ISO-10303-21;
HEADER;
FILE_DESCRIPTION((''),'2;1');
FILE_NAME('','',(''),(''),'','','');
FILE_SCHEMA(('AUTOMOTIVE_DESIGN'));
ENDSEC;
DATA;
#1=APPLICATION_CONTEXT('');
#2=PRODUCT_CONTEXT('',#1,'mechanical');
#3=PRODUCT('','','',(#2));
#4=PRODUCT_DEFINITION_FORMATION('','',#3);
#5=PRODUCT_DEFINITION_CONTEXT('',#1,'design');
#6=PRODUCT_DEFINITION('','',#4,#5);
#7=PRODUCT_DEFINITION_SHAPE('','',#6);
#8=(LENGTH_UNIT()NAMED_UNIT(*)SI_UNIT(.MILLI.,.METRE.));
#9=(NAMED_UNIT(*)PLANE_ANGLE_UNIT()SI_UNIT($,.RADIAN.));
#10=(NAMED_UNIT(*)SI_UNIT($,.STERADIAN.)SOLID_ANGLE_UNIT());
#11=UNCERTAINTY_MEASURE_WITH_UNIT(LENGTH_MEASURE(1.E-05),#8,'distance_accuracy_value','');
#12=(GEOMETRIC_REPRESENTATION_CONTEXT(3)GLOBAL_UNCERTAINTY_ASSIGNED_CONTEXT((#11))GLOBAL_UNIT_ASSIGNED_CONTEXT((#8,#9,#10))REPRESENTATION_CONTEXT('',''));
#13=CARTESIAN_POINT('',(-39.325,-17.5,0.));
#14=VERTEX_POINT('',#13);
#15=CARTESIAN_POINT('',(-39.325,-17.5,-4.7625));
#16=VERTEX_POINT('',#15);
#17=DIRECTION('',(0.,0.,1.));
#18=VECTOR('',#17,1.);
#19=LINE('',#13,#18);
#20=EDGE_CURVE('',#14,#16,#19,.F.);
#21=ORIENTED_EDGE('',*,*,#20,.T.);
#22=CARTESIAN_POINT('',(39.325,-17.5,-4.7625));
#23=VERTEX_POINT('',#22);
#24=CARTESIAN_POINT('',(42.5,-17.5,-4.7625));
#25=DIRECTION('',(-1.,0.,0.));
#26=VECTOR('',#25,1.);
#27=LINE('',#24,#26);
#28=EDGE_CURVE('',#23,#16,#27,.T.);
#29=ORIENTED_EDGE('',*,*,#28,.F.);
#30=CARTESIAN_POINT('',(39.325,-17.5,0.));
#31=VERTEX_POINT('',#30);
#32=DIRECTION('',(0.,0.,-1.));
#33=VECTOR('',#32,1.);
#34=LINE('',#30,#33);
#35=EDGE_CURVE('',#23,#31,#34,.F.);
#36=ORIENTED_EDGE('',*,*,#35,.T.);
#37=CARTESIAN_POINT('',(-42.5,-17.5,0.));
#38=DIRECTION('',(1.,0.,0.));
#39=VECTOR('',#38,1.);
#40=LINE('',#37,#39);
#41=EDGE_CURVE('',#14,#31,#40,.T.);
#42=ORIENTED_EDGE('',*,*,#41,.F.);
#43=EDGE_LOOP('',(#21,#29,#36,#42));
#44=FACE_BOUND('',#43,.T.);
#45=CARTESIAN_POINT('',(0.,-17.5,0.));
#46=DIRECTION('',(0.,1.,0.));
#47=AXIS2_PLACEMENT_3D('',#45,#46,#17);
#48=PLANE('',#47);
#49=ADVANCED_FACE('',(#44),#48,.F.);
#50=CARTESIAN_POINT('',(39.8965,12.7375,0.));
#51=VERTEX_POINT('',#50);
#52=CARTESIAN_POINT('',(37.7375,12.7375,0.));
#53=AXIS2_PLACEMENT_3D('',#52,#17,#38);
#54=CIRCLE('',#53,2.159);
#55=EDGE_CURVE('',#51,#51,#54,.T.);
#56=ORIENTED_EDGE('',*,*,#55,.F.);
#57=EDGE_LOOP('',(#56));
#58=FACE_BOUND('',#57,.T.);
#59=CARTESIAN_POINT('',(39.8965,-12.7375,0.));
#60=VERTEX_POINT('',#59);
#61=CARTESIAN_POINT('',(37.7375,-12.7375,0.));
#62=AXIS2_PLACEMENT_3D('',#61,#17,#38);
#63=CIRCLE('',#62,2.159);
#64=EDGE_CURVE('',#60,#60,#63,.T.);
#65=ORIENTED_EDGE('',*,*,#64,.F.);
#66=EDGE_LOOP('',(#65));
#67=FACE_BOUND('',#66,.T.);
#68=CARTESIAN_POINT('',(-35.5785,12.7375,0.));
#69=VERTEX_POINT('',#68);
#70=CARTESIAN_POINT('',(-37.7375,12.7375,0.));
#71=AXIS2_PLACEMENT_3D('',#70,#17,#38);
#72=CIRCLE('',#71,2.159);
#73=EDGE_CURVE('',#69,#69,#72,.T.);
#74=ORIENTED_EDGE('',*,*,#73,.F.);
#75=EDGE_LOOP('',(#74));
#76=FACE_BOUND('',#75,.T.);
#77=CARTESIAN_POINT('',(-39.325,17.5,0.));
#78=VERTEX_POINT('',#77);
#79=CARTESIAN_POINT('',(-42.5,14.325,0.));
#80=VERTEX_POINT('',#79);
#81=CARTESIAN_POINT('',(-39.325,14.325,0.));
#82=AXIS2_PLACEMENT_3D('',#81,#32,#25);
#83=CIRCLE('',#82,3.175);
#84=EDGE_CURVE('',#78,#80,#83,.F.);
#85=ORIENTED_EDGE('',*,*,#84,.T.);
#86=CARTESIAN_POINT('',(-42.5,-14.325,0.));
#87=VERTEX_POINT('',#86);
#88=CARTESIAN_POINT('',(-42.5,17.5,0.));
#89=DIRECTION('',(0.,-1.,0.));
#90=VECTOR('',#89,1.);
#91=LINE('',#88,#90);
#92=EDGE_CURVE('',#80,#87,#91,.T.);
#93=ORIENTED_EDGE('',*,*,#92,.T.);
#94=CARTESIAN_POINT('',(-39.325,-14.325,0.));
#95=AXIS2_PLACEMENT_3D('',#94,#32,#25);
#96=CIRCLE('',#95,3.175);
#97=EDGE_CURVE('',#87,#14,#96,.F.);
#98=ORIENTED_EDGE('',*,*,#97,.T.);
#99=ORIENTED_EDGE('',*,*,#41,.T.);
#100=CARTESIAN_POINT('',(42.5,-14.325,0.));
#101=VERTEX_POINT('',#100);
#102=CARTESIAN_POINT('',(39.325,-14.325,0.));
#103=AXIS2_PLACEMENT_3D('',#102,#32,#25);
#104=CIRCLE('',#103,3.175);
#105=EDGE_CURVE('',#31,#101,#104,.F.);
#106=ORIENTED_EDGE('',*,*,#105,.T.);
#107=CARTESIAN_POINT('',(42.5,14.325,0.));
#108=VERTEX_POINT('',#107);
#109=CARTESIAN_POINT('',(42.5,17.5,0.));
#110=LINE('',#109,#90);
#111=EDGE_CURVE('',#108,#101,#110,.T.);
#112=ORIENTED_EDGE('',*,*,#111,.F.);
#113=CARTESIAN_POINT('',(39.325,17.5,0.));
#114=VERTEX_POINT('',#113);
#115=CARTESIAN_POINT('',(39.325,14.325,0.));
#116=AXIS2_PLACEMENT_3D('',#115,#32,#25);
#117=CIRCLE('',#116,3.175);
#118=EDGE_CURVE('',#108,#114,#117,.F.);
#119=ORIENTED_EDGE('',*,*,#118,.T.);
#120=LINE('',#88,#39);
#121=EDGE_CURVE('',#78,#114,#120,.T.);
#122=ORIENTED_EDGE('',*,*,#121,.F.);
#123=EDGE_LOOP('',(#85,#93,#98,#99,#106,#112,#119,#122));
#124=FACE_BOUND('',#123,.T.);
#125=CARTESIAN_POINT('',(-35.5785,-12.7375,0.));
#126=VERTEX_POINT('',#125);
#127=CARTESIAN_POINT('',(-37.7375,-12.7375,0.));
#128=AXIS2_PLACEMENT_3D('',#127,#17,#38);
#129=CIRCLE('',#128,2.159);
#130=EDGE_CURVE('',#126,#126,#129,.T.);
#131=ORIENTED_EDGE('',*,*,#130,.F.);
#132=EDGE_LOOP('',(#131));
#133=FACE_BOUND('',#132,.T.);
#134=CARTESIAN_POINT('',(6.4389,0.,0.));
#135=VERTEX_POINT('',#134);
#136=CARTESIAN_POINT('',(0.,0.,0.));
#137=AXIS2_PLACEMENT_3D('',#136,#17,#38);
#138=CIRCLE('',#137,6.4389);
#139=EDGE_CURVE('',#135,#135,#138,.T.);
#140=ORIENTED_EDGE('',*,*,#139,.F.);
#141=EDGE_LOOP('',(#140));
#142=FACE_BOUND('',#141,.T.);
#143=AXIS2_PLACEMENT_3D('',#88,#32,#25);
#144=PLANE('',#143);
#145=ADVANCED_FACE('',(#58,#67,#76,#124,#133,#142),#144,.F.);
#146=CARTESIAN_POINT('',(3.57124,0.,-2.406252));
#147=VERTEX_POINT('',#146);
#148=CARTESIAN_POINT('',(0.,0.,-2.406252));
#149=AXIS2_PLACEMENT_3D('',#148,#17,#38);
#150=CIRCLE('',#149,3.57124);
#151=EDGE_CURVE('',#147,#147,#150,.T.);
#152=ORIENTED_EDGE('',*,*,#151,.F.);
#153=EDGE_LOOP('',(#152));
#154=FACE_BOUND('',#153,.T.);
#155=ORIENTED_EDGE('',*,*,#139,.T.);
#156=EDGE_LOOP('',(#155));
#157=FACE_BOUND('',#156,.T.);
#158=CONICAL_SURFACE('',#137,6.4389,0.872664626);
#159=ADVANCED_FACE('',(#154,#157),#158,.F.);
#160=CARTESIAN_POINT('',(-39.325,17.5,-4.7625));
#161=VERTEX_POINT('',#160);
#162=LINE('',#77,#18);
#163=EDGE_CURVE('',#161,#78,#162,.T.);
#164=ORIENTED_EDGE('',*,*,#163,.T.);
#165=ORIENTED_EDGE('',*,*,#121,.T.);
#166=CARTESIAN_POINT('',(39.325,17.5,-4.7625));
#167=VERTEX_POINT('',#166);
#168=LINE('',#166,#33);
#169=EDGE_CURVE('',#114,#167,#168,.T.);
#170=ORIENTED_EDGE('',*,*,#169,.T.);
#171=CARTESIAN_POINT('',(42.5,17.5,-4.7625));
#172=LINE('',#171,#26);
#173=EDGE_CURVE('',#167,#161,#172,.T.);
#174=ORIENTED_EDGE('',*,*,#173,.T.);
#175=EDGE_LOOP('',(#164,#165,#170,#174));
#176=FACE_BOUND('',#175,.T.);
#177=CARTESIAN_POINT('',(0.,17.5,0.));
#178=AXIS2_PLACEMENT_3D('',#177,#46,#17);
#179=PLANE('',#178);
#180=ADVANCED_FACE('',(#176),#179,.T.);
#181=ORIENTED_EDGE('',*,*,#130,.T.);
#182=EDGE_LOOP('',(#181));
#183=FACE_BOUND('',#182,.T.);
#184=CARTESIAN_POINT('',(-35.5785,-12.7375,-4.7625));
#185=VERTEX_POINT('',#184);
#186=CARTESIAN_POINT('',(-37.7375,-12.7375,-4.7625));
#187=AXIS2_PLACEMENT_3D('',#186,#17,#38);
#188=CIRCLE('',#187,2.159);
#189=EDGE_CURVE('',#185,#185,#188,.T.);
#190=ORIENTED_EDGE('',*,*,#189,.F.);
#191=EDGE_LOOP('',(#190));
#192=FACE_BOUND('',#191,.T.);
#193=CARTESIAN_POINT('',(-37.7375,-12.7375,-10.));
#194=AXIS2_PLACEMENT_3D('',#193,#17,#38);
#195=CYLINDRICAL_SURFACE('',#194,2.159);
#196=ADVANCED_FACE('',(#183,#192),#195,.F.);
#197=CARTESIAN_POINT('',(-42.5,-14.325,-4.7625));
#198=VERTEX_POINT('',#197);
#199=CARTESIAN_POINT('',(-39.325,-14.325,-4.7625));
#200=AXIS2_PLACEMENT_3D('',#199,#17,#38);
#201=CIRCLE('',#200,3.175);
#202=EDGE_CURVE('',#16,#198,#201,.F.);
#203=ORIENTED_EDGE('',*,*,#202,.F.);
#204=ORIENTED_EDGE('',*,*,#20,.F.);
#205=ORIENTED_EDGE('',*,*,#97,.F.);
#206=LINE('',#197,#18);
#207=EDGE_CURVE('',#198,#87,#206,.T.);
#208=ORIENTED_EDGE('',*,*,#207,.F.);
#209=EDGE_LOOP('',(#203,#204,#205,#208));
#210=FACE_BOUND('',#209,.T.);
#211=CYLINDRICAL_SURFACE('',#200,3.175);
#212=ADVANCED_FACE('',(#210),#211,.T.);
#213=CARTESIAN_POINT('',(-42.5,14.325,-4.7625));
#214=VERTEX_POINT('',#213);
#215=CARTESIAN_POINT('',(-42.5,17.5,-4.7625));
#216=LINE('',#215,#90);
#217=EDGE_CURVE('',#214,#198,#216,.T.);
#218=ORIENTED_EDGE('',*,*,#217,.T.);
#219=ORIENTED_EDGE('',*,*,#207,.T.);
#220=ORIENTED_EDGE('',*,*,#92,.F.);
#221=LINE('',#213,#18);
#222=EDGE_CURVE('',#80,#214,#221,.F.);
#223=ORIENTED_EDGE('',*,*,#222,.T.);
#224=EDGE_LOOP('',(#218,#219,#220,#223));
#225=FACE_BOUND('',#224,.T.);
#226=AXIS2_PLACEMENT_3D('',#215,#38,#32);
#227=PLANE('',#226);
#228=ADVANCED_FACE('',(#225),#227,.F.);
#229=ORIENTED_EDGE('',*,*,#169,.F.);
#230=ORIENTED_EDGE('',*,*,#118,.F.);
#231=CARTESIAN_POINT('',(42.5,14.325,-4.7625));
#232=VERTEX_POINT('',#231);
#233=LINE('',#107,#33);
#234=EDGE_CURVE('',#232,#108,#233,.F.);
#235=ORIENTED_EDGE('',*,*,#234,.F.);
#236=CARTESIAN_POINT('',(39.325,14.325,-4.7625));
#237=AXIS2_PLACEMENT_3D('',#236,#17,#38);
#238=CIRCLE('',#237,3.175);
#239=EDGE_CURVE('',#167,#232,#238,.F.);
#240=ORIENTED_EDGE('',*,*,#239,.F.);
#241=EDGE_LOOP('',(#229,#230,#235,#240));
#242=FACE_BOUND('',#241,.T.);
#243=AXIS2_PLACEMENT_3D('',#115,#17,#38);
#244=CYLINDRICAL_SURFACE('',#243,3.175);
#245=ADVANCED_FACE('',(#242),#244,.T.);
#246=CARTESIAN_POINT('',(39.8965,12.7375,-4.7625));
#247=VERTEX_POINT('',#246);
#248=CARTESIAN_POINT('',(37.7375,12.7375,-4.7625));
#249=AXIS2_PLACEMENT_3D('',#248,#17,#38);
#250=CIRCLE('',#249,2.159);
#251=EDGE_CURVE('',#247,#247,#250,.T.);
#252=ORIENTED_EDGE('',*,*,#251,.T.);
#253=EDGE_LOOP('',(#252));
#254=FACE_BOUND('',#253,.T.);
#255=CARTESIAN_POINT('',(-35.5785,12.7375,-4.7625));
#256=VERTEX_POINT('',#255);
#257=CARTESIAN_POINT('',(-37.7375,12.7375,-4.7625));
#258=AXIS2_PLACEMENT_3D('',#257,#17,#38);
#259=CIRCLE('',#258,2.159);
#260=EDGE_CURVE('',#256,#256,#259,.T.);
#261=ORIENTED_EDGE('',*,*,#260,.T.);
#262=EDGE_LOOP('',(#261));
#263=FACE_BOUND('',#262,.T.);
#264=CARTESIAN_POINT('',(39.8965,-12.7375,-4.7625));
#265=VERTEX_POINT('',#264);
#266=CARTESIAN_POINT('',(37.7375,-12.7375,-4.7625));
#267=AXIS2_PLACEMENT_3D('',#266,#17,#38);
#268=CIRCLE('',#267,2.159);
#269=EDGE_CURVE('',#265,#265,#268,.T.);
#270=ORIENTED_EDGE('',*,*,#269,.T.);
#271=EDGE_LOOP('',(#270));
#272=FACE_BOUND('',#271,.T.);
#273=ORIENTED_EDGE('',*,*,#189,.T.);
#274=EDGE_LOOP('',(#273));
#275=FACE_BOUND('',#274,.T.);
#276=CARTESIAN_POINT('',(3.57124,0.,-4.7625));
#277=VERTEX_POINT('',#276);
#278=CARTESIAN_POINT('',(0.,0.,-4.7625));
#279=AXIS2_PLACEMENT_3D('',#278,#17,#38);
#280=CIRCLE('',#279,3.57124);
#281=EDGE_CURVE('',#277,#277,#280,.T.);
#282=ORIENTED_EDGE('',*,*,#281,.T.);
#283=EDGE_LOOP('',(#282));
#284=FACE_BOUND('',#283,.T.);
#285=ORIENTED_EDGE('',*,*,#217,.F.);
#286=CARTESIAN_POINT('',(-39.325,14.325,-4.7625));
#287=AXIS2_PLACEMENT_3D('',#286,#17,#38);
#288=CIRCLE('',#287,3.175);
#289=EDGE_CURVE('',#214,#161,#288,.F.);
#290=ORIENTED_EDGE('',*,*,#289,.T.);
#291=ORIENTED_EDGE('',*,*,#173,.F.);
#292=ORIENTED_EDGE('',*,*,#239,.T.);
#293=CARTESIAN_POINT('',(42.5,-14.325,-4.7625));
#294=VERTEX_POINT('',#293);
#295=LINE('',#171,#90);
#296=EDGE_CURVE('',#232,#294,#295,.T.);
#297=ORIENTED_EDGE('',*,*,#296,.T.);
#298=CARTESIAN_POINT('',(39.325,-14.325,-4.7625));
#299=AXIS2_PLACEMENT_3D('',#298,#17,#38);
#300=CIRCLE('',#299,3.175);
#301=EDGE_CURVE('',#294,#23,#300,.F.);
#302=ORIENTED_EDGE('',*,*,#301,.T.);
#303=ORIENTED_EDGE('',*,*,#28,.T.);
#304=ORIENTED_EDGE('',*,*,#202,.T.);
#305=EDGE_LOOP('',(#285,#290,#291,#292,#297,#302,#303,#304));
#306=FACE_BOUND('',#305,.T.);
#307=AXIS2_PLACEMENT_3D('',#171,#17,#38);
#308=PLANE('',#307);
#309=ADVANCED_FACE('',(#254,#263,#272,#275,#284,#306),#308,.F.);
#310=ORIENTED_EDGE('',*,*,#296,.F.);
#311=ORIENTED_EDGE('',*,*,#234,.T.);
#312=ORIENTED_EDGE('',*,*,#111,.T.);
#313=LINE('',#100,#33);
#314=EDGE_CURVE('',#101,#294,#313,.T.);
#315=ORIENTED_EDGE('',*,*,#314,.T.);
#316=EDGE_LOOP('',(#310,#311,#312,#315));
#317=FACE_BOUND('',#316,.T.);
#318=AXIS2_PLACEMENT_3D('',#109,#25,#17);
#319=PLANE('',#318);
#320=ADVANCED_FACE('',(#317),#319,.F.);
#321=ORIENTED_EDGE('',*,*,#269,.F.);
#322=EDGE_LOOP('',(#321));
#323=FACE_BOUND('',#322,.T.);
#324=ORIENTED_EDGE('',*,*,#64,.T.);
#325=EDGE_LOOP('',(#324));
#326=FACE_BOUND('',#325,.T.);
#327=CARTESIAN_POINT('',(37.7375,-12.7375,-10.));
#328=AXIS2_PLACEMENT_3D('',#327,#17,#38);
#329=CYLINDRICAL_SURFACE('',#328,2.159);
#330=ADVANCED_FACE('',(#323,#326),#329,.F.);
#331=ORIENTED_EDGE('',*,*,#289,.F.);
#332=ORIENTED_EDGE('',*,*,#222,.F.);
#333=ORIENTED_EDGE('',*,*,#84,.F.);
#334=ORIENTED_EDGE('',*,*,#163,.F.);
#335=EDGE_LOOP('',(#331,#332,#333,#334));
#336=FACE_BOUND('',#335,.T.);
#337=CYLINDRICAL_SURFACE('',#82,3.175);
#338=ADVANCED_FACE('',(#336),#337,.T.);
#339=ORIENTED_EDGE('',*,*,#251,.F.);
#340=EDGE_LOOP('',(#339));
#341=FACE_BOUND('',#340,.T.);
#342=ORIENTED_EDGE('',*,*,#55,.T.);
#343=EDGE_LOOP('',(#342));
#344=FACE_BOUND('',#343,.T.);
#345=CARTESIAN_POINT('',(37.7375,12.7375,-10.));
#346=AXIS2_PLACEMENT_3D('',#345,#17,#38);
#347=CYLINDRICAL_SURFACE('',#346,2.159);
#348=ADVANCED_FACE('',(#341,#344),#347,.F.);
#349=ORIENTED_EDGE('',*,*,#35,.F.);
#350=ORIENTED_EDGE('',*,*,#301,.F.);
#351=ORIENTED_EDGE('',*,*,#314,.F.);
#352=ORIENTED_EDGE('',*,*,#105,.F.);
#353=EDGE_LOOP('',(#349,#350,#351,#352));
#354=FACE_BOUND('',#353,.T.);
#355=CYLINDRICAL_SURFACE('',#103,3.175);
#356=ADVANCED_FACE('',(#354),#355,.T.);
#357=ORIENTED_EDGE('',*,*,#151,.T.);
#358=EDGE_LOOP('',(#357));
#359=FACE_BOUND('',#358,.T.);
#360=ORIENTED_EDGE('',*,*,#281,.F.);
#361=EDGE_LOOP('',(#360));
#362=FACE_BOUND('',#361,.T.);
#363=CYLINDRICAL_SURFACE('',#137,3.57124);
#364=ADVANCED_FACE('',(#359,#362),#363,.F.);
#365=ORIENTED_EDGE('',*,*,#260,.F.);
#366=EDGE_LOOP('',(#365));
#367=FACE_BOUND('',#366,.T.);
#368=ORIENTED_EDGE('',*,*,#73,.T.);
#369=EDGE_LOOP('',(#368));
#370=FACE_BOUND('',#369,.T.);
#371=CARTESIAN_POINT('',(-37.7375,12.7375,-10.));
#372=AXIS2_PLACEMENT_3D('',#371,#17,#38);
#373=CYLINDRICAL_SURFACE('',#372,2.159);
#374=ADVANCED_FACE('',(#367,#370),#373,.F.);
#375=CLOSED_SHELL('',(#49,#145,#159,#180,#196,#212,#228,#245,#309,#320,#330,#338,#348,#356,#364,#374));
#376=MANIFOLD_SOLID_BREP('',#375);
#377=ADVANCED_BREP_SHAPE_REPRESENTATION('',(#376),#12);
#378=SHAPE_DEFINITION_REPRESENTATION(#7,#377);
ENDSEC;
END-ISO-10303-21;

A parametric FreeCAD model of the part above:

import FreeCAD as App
import Part
import Sketcher
Q = App.Units.Quantity


def edges_at(feature, points):
    """Names of the edges that pass closest to the given points."""
    edges = feature.Shape.Edges
    near = lambda p: min(range(len(edges)), key=lambda i: edges[i].distToShape(Part.Vertex(*p))[0])
    return sorted({f"Edge{near(p) + 1}" for p in points})


def add_polygon(sketch, points):
    """Adds a closed chain of lines whose ends are joined by coincident constraints."""
    first, n = sketch.GeometryCount, len(points)
    for a, b in zip(points, points[1:] + points[:1]):
        sketch.addGeometry(Part.LineSegment(App.Vector(*a, 0), App.Vector(*b, 0)), False)
    for i in range(n):
        sketch.addConstraint(Sketcher.Constraint("Coincident", first + i, 2, first + (i + 1) % n, 1))

doc = App.newDocument("Part")
body = doc.addObject("PartDesign::Body", "Body")

# Sketch on XZ plane
sketch1 = body.newObject("Sketcher::SketchObject", "Sketch")
sketch1.AttachmentSupport = (doc.getObject("XZ_Plane"), [""])
sketch1.MapMode = "FlatFace"
add_polygon(sketch1, [(-42.5, -4.7625), (-42.5, 0), (42.5, 0), (42.5, -4.7625)])  # lines 0-3
sketch1.addConstraint([
    Sketcher.Constraint("Vertical", 0),
    Sketcher.Constraint("Horizontal", 1),
    Sketcher.Constraint("Vertical", 2),
    Sketcher.Constraint("Horizontal", 3),
    Sketcher.Constraint("Symmetric", 0, 2, 1, 2, -1, 1),
    Sketcher.Constraint("DistanceX", 1, 1, 1, 2, 85.0),
    Sketcher.Constraint("DistanceY", 0, 1, 0, 2, 4.7625),
])
pad1 = body.newObject("PartDesign::Pad", "Pad")
pad1.Profile = sketch1
pad1.Length = 35
pad1.Midplane = True
doc.recompute()

fillet = body.newObject("PartDesign::Fillet", "Fillet")
fillet.Base = (pad1, edges_at(pad1, [
    (42.5, 17.5, -2.381),
    (42.5, -17.5, -2.381),
    (-42.5, -17.5, -2.381),
    (-42.5, 17.5, -2.381),
]))
fillet.Radius = 3.175

# Sketch on XY plane
sketch2 = body.newObject("Sketcher::SketchObject", "Sketch001")
sketch2.AttachmentSupport = (doc.getObject("XY_Plane"), [""])
sketch2.MapMode = "FlatFace"
sketch2.addGeometry([
    Part.Circle(App.Vector(-37.7375, 12.7375, 0), App.Vector(0, 0, 1), 2.159),
    Part.Circle(App.Vector(-37.7375, -12.7375, 0), App.Vector(0, 0, 1), 2.159),
    Part.Circle(App.Vector(37.7375, 12.7375, 0), App.Vector(0, 0, 1), 2.159),
    Part.Circle(App.Vector(37.7375, -12.7375, 0), App.Vector(0, 0, 1), 2.159),
], False)
sketch2.addConstraint([
    Sketcher.Constraint("Equal", 0, 1),
    Sketcher.Constraint("Equal", 1, 2),
    Sketcher.Constraint("Equal", 2, 3),
    Sketcher.Constraint("Symmetric", 1, 3, 2, 3, -1, 1),
    Sketcher.Constraint("Symmetric", 0, 3, 3, 3, -1, 1),
    Sketcher.Constraint("Symmetric", 0, 3, 2, 3, -2),
    Sketcher.Constraint("Diameter", 0, 4.318),
    Sketcher.Constraint("DistanceY", 1, 3, 0, 3, 25.475),
    Sketcher.Constraint("DistanceX", 0, 3, 2, 3, 75.475),
])
pocket1 = body.newObject("PartDesign::Pocket", "Pocket")
pocket1.Profile = sketch2
pocket1.Length = 10

# Sketch on YZ plane
sketch3 = body.newObject("Sketcher::SketchObject", "Sketch002")
sketch3.AttachmentSupport = (doc.getObject("YZ_Plane"), [""])
sketch3.MapMode = "FlatFace"
add_polygon(sketch3, [(0, -4.7625), (0, 0), (-6.4389, 0), (-3.57124, -2.406252), (-3.57124, -4.7625)])  # lines 0-4
sketch3.addConstraint([
    Sketcher.Constraint("Vertical", 0),
    Sketcher.Constraint("Horizontal", 1),
    Sketcher.Constraint("Vertical", 3),
    Sketcher.Constraint("Horizontal", 4),
    Sketcher.Constraint("Coincident", 0, 2, -1, 1),
    Sketcher.Constraint("Angle", 2, Q("-40 deg")),
    Sketcher.Constraint("DistanceX", 1, 2, 1, 1, 6.4389),
    Sketcher.Constraint("DistanceY", 0, 1, 0, 2, 4.7625),
    Sketcher.Constraint("DistanceX", 4, 1, 4, 2, 3.57124),
])
groove = body.newObject("PartDesign::Groove", "Groove")
groove.Profile = sketch3
groove.ReferenceAxis = (sketch3, ["V_Axis"])
groove.Angle = 360

doc.recompute()
